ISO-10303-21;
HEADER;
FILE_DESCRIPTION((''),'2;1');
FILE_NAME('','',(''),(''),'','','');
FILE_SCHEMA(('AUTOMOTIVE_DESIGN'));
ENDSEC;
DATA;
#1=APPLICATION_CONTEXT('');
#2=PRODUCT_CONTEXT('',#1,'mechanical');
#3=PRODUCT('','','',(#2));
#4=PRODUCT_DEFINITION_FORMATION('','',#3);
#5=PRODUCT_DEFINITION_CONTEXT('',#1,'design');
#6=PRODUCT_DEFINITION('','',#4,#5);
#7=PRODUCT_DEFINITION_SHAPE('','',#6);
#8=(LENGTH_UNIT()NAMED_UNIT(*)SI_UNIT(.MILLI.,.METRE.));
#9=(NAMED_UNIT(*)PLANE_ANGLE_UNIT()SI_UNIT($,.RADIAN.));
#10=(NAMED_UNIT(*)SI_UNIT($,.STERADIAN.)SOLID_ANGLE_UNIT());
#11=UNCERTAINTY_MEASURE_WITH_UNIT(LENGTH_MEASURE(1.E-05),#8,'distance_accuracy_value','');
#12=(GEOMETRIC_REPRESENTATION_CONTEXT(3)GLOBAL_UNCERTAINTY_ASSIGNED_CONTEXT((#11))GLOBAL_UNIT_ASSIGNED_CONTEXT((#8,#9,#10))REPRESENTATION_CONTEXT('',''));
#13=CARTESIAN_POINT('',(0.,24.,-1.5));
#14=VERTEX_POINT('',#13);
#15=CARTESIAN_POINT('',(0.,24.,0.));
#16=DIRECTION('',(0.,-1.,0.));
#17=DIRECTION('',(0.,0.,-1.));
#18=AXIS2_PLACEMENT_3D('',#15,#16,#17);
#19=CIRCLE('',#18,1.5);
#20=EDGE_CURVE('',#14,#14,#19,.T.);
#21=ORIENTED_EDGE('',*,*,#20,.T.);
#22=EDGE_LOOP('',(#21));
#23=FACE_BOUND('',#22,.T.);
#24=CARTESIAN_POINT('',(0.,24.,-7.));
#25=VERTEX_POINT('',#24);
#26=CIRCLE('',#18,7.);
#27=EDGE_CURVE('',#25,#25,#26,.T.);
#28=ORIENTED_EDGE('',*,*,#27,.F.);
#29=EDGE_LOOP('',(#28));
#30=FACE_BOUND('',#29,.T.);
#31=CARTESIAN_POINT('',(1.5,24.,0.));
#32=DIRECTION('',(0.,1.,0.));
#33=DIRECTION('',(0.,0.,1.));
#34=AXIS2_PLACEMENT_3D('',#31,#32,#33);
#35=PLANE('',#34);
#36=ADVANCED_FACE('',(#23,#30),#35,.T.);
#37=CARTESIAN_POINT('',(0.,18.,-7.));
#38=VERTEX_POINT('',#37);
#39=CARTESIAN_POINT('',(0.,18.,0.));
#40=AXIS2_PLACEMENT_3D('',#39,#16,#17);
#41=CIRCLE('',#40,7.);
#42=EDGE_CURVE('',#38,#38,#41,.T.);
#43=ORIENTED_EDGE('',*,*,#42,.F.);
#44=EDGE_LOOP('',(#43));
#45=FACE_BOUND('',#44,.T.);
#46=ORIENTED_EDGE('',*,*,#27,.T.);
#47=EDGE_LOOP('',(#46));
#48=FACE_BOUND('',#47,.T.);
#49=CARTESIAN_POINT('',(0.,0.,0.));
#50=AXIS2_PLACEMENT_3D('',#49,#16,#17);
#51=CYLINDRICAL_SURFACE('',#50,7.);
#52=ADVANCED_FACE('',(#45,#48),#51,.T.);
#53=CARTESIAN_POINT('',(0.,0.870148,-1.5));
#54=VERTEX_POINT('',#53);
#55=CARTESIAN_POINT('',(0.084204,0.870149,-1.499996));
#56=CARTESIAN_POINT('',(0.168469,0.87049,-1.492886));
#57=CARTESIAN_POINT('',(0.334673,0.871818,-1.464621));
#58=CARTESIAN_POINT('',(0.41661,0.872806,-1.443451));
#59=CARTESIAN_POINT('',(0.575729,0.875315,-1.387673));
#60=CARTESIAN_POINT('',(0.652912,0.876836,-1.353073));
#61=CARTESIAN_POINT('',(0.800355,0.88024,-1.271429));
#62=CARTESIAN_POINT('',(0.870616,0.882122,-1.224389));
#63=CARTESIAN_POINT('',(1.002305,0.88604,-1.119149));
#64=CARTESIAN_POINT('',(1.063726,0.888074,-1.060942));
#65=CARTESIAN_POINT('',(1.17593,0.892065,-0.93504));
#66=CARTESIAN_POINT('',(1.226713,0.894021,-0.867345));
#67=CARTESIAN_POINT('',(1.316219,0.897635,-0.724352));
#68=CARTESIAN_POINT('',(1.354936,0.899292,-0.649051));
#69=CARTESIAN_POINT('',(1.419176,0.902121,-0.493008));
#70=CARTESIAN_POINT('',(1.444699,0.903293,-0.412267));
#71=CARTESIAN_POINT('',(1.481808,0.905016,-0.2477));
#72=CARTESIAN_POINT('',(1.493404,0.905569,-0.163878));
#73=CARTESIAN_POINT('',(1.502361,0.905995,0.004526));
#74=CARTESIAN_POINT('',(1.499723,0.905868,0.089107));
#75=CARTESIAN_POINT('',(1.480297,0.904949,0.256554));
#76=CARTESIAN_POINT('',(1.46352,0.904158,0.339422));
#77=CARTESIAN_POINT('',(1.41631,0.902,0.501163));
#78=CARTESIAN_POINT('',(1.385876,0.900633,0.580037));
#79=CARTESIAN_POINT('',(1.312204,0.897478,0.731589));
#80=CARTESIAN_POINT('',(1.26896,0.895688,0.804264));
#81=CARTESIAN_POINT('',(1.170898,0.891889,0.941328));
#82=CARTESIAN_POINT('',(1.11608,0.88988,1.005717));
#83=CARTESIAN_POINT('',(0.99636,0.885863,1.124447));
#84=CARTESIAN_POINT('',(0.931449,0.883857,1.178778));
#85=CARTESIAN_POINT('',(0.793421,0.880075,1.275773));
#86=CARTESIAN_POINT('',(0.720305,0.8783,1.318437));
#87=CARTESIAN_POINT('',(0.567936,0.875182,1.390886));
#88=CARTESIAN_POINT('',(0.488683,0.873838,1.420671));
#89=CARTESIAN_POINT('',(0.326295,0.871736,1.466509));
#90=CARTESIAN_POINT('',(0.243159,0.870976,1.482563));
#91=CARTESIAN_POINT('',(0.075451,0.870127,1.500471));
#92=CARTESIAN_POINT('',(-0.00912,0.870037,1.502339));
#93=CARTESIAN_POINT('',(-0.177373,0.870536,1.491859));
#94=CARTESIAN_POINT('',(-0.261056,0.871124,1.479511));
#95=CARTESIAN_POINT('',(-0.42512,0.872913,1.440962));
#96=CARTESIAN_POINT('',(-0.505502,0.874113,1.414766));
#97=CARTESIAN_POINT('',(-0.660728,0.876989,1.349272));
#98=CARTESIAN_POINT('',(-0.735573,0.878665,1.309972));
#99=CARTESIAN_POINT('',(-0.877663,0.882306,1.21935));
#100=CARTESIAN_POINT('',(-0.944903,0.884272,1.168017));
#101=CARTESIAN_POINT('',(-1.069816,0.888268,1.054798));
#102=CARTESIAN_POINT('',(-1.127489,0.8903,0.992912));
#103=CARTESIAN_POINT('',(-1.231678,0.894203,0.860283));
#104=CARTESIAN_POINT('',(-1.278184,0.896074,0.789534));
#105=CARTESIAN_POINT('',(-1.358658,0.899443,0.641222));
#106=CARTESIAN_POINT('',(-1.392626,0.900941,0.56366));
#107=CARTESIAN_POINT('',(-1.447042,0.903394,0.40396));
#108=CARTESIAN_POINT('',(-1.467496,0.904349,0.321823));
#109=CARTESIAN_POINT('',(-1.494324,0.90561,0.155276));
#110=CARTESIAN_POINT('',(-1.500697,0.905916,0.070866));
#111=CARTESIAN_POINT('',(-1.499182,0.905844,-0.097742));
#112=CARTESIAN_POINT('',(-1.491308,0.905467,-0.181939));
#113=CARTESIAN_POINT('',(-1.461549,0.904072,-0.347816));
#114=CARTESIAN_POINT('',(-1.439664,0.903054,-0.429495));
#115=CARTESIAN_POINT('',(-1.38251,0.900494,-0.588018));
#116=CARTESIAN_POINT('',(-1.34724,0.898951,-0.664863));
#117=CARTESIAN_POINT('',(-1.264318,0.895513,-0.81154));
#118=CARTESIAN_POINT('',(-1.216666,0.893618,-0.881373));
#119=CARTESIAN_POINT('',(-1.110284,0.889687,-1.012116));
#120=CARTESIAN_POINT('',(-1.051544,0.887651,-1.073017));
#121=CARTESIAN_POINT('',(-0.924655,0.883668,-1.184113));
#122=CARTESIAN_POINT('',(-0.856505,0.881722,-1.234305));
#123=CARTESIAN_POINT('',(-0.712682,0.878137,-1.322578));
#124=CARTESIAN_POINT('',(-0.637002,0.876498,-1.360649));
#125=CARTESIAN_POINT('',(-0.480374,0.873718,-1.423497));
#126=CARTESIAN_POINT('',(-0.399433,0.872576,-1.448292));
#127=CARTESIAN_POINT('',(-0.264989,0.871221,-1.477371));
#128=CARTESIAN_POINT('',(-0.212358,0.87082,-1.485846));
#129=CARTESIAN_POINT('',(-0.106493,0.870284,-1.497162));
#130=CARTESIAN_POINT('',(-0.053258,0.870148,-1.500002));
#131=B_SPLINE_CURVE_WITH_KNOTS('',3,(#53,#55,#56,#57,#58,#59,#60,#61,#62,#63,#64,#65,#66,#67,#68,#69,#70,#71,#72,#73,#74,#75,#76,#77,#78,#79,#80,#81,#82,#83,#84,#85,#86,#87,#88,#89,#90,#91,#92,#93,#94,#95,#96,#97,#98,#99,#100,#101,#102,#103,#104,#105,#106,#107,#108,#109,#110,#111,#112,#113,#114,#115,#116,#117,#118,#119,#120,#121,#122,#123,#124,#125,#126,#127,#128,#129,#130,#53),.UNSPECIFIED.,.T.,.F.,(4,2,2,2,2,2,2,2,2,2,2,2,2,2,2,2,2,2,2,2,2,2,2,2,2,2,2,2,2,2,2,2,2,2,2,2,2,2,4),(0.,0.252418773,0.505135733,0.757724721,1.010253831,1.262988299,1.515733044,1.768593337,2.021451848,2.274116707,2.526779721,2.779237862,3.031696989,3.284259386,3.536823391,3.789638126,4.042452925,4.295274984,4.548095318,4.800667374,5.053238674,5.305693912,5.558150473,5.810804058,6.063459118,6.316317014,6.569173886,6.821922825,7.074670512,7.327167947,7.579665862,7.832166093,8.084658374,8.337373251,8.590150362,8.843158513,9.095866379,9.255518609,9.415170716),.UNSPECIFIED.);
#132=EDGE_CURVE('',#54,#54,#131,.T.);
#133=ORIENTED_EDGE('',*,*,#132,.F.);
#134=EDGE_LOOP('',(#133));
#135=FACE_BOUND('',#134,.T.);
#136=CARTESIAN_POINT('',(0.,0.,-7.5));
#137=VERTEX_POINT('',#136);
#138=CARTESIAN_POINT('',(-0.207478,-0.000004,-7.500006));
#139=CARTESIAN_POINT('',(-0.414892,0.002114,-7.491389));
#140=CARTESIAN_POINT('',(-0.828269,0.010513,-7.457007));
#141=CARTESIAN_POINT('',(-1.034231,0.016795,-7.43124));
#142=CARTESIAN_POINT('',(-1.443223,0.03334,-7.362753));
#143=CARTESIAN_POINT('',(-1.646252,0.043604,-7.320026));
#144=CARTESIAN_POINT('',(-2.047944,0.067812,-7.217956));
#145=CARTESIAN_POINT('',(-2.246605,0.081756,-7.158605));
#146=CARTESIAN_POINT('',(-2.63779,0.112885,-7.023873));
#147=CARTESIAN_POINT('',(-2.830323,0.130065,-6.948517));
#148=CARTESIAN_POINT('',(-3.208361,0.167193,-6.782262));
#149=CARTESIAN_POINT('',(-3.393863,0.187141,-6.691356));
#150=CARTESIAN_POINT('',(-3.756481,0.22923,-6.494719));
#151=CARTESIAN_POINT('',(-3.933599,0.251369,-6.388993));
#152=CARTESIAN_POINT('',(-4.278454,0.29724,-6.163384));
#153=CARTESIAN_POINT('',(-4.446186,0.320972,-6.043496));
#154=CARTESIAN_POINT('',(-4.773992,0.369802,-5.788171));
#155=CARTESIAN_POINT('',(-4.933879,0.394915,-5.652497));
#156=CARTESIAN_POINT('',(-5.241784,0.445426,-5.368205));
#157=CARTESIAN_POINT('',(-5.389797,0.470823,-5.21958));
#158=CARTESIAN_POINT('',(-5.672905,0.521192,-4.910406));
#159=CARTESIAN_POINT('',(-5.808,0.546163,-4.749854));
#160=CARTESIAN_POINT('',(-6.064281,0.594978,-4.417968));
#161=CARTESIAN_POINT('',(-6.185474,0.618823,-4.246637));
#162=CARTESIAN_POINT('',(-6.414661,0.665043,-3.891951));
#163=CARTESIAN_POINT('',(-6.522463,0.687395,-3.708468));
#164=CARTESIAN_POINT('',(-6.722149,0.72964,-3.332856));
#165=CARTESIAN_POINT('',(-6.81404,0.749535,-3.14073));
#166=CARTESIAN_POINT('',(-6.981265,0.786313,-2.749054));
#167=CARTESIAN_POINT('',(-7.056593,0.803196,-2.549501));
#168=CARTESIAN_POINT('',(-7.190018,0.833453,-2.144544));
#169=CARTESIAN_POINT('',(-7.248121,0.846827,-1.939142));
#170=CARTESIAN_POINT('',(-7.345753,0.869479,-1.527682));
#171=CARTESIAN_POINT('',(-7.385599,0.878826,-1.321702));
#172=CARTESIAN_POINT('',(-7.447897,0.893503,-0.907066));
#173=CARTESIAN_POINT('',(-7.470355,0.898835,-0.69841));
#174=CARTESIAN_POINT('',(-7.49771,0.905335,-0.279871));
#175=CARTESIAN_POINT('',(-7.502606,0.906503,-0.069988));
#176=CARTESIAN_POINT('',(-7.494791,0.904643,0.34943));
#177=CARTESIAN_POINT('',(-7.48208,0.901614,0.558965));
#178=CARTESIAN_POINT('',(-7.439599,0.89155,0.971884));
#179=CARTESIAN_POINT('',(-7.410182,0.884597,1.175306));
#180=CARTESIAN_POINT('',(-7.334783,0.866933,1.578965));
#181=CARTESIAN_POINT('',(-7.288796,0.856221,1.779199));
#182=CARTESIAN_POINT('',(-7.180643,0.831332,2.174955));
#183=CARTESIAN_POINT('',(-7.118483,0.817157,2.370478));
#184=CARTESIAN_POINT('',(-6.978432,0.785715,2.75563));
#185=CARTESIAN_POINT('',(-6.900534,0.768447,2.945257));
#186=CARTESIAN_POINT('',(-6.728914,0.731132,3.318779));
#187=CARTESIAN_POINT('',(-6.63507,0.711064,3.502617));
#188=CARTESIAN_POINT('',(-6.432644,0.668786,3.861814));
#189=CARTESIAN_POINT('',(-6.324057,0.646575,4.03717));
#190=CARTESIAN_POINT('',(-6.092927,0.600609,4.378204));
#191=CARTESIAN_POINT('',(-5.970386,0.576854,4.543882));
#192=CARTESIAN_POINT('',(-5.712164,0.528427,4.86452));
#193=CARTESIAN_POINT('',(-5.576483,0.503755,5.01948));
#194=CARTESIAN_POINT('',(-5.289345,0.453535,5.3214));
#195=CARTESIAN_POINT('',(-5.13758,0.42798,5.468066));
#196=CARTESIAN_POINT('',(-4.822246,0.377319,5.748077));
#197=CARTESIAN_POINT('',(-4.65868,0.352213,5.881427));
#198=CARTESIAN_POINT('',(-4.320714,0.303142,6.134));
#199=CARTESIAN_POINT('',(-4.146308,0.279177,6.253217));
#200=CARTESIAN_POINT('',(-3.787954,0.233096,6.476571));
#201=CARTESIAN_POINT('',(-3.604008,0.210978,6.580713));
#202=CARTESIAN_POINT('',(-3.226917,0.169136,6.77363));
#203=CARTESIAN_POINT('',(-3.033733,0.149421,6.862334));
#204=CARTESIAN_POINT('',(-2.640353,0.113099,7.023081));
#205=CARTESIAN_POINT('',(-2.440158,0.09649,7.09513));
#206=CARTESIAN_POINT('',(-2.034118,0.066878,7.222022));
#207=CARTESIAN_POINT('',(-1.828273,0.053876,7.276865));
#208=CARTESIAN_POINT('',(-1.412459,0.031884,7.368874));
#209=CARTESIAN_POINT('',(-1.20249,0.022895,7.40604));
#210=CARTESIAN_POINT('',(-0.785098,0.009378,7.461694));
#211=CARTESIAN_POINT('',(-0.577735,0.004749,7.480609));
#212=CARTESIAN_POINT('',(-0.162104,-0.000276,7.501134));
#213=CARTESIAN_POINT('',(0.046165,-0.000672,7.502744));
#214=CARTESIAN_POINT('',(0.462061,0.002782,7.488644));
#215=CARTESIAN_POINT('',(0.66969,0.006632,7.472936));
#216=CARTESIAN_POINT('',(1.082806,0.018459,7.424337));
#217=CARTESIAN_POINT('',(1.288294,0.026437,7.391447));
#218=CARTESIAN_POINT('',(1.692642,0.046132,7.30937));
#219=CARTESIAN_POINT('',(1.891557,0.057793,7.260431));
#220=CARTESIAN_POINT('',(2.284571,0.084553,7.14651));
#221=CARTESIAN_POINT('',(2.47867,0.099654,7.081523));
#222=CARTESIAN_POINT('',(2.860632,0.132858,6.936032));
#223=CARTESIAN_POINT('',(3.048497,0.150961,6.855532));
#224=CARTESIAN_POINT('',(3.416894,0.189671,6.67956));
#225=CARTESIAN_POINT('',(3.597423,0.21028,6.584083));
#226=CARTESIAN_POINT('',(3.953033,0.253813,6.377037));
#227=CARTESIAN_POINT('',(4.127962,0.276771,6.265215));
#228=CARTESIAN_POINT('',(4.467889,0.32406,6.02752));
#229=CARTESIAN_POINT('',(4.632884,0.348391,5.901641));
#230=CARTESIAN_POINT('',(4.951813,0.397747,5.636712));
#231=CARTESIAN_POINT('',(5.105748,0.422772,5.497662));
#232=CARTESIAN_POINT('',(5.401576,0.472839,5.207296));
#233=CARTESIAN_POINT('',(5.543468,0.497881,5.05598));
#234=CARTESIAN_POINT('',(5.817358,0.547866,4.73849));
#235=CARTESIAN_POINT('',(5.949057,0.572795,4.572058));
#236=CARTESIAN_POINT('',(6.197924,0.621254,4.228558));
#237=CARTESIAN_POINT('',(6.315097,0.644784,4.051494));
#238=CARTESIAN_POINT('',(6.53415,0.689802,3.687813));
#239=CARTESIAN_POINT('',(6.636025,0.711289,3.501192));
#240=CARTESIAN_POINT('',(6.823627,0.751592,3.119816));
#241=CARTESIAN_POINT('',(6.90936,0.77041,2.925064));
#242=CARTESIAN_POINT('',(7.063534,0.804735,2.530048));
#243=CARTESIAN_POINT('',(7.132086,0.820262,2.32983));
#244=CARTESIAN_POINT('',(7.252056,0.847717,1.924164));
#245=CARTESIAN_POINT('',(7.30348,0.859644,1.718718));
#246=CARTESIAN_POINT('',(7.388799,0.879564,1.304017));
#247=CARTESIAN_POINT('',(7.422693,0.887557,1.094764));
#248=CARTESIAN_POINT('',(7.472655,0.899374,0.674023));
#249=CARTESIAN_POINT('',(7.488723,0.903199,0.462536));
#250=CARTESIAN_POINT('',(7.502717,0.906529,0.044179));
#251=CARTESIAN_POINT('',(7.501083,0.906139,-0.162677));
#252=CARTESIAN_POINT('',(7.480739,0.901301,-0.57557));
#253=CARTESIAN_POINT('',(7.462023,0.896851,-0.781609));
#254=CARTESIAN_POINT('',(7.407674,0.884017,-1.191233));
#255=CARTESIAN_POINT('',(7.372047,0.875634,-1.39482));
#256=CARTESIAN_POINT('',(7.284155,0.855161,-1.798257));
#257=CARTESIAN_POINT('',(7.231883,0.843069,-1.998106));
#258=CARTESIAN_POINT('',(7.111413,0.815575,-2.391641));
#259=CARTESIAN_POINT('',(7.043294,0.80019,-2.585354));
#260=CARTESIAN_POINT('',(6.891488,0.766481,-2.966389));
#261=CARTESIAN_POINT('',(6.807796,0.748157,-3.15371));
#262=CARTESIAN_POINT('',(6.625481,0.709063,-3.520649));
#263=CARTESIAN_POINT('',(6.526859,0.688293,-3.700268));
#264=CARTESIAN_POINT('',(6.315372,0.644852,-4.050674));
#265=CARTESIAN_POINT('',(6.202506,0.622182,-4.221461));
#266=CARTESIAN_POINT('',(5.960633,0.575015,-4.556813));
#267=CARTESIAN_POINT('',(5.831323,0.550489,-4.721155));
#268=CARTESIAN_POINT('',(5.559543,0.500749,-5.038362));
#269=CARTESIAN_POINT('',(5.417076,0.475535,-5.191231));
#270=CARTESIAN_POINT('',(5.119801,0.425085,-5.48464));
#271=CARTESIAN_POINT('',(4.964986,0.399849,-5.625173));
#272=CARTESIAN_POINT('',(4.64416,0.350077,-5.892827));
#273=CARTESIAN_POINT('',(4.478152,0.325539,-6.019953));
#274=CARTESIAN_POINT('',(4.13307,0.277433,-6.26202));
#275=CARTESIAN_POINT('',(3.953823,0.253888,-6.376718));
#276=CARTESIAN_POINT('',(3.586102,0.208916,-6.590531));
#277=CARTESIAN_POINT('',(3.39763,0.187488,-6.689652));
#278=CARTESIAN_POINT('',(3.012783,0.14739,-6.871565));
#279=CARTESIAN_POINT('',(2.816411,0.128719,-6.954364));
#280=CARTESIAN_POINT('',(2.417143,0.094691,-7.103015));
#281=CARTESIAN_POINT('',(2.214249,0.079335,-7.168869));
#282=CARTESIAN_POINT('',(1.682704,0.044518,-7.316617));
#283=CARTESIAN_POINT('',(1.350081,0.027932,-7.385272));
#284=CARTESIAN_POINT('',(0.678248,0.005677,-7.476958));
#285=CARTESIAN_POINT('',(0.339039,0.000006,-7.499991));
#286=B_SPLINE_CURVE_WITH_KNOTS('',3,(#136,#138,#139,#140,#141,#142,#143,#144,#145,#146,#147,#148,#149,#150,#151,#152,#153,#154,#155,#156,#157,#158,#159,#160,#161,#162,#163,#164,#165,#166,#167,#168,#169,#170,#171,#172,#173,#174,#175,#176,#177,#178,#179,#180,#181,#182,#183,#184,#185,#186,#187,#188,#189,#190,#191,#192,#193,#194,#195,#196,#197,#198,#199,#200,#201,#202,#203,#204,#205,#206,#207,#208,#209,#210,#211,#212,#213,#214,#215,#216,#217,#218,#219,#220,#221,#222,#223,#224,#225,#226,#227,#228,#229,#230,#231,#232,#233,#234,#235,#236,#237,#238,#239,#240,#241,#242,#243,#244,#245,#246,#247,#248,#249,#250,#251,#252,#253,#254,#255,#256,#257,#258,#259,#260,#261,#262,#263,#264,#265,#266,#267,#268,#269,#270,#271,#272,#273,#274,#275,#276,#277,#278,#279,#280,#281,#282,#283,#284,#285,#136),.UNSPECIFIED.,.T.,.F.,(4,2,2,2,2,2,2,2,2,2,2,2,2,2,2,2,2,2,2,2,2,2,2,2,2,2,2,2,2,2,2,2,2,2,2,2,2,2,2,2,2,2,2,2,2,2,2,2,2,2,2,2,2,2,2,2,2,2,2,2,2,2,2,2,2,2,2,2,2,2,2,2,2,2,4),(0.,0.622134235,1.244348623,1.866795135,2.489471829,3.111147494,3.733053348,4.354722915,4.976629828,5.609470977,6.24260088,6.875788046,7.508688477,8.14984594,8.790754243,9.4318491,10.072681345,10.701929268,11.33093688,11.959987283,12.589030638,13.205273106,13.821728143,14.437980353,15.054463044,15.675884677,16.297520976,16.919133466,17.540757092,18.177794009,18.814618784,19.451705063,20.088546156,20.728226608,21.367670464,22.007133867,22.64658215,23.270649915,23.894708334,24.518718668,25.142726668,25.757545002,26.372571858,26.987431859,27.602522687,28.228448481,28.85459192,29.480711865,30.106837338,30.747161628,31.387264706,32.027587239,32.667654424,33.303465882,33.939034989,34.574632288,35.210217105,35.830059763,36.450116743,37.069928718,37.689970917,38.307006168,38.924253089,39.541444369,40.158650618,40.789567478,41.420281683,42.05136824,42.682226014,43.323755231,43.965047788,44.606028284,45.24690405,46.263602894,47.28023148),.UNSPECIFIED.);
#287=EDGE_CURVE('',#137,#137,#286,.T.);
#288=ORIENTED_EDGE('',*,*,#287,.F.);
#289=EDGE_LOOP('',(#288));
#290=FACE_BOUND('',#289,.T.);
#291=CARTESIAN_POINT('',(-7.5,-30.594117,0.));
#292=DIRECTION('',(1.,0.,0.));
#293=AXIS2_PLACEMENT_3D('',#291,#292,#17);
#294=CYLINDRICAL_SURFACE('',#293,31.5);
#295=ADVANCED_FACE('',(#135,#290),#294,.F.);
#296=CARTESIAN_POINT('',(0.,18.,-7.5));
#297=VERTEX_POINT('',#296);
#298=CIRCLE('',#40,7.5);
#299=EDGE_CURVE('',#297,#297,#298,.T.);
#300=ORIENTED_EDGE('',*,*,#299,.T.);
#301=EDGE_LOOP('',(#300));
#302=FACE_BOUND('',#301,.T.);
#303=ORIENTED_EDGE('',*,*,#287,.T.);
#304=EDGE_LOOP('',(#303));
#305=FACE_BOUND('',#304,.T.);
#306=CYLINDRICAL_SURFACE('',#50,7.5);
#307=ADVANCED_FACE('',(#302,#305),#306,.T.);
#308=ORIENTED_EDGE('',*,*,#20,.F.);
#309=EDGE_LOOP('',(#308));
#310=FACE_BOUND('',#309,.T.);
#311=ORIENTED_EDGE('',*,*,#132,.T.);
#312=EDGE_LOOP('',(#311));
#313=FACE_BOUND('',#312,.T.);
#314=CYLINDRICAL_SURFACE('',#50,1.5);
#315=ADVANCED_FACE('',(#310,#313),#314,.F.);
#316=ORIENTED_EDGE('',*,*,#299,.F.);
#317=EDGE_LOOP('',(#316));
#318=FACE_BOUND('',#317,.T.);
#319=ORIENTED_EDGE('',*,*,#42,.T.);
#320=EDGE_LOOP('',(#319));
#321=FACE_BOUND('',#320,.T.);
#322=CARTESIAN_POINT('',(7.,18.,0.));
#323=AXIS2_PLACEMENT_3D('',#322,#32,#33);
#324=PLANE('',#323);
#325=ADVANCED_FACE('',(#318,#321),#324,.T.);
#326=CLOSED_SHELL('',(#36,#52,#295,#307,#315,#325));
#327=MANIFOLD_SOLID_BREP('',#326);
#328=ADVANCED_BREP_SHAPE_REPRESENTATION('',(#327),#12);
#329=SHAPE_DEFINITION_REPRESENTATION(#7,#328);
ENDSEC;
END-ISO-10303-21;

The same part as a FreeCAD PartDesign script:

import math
import FreeCAD as App
import Part
import Sketcher


def add_polygon(sketch, points):
    """Adds a closed chain of lines whose ends are joined by coincident constraints."""
    first, n = sketch.GeometryCount, len(points)
    for a, b in zip(points, points[1:] + points[:1]):
        sketch.addGeometry(Part.LineSegment(App.Vector(*a, 0), App.Vector(*b, 0)), False)
    for i in range(n):
        sketch.addConstraint(Sketcher.Constraint("Coincident", first + i, 2, first + (i + 1) % n, 1))

doc = App.newDocument("Part")
params = doc.addObject("Spreadsheet::Sheet", "Params")
for row, (alias, value) in enumerate([
    ("sketch1_width", "6 mm"),
    ("sketch1_height", "24 mm"),
    ("sketch1_width2", "5.5 mm"),
    ("revolution_angle", "360 deg"),
    ("sketch2_radius", "31.5 mm"),
    ("sketch2_height", "15 mm"),
], start=1):
    params.set(f"A{row}", alias)
    params.set(f"B{row}", "=" + value)
    params.setAlias(f"B{row}", alias)

body = doc.addObject("PartDesign::Body", "Body")

# Sketch on XY plane
sketch1 = body.newObject("Sketcher::SketchObject", "Sketch")
sketch1.AttachmentSupport = (doc.getObject("XY_Plane"), [""])
sketch1.MapMode = "FlatFace"
add_polygon(sketch1, [(7, 18), (7, 24), (1.5, 24), (1.5, 0), (7.5, 0), (7.5, 18)])  # lines 0-5
sketch1.addConstraint(Sketcher.Constraint("Vertical", 0))
sketch1.addConstraint(Sketcher.Constraint("Horizontal", 1))
sketch1.addConstraint(Sketcher.Constraint("Vertical", 2))
sketch1.addConstraint(Sketcher.Constraint("Horizontal", 3))
sketch1.addConstraint(Sketcher.Constraint("Vertical", 4))
sketch1.addConstraint(Sketcher.Constraint("Horizontal", 5))
sketch1.addConstraint(Sketcher.Constraint("PointOnObject", 2, 2, -1))
sketch1.addConstraint(Sketcher.Constraint("Equal", 3, 0))
sketch1.addConstraint(Sketcher.Constraint("DistanceX", 3, 1, 3, 2, 6.0))
sketch1.addConstraint(Sketcher.Constraint("DistanceY", 2, 2, 2, 1, 24.0))
sketch1.addConstraint(Sketcher.Constraint("DistanceX", 1, 2, 1, 1, 5.5))
sketch1.addConstraint(Sketcher.Constraint("DistanceX", -1, 1, 0, 2, 7.0))
sketch1.setExpression("Constraints[14]", "Params.sketch1_width")
sketch1.setExpression("Constraints[15]", "Params.sketch1_height")
sketch1.setExpression("Constraints[16]", "Params.sketch1_width2")
revolution = body.newObject("PartDesign::Revolution", "Revolution")
revolution.Profile = sketch1
revolution.ReferenceAxis = (sketch1, ["V_Axis"])
revolution.setExpression("Angle", "Params.revolution_angle")

# Sketch on YZ plane
sketch2 = body.newObject("Sketcher::SketchObject", "Sketch001")
sketch2.AttachmentSupport = (doc.getObject("YZ_Plane"), [""])
sketch2.MapMode = "FlatFace"
sketch2.addGeometry(Part.LineSegment(App.Vector(0, 8, 0), App.Vector(0, -8, 0)), False)
sketch2.addGeometry(Part.ArcOfCircle(Part.Circle(App.Vector(-31, 0, 0), App.Vector(0, 0, 1), 32), math.radians(-14), math.radians(14)), False)
sketch2.addConstraint(Sketcher.Constraint("Coincident", 0, 1, 1, 2))
sketch2.addConstraint(Sketcher.Constraint("Coincident", 1, 1, 0, 2))
sketch2.addConstraint(Sketcher.Constraint("Vertical", 0))
sketch2.addConstraint(Sketcher.Constraint("Symmetric", 0, 1, 1, 1, -1, 1))
sketch2.addConstraint(Sketcher.Constraint("Radius", 1, 31.5))
sketch2.addConstraint(Sketcher.Constraint("DistanceY", 0, 2, 0, 1, 15.0))
sketch2.setExpression("Constraints[4]", "Params.sketch2_radius")
sketch2.setExpression("Constraints[5]", "Params.sketch2_height")
pocket1 = body.newObject("PartDesign::Pocket", "Pocket")
pocket1.Profile = sketch2
pocket1.Type = "ThroughAll"
pocket1.Midplane = True

doc.recompute()
